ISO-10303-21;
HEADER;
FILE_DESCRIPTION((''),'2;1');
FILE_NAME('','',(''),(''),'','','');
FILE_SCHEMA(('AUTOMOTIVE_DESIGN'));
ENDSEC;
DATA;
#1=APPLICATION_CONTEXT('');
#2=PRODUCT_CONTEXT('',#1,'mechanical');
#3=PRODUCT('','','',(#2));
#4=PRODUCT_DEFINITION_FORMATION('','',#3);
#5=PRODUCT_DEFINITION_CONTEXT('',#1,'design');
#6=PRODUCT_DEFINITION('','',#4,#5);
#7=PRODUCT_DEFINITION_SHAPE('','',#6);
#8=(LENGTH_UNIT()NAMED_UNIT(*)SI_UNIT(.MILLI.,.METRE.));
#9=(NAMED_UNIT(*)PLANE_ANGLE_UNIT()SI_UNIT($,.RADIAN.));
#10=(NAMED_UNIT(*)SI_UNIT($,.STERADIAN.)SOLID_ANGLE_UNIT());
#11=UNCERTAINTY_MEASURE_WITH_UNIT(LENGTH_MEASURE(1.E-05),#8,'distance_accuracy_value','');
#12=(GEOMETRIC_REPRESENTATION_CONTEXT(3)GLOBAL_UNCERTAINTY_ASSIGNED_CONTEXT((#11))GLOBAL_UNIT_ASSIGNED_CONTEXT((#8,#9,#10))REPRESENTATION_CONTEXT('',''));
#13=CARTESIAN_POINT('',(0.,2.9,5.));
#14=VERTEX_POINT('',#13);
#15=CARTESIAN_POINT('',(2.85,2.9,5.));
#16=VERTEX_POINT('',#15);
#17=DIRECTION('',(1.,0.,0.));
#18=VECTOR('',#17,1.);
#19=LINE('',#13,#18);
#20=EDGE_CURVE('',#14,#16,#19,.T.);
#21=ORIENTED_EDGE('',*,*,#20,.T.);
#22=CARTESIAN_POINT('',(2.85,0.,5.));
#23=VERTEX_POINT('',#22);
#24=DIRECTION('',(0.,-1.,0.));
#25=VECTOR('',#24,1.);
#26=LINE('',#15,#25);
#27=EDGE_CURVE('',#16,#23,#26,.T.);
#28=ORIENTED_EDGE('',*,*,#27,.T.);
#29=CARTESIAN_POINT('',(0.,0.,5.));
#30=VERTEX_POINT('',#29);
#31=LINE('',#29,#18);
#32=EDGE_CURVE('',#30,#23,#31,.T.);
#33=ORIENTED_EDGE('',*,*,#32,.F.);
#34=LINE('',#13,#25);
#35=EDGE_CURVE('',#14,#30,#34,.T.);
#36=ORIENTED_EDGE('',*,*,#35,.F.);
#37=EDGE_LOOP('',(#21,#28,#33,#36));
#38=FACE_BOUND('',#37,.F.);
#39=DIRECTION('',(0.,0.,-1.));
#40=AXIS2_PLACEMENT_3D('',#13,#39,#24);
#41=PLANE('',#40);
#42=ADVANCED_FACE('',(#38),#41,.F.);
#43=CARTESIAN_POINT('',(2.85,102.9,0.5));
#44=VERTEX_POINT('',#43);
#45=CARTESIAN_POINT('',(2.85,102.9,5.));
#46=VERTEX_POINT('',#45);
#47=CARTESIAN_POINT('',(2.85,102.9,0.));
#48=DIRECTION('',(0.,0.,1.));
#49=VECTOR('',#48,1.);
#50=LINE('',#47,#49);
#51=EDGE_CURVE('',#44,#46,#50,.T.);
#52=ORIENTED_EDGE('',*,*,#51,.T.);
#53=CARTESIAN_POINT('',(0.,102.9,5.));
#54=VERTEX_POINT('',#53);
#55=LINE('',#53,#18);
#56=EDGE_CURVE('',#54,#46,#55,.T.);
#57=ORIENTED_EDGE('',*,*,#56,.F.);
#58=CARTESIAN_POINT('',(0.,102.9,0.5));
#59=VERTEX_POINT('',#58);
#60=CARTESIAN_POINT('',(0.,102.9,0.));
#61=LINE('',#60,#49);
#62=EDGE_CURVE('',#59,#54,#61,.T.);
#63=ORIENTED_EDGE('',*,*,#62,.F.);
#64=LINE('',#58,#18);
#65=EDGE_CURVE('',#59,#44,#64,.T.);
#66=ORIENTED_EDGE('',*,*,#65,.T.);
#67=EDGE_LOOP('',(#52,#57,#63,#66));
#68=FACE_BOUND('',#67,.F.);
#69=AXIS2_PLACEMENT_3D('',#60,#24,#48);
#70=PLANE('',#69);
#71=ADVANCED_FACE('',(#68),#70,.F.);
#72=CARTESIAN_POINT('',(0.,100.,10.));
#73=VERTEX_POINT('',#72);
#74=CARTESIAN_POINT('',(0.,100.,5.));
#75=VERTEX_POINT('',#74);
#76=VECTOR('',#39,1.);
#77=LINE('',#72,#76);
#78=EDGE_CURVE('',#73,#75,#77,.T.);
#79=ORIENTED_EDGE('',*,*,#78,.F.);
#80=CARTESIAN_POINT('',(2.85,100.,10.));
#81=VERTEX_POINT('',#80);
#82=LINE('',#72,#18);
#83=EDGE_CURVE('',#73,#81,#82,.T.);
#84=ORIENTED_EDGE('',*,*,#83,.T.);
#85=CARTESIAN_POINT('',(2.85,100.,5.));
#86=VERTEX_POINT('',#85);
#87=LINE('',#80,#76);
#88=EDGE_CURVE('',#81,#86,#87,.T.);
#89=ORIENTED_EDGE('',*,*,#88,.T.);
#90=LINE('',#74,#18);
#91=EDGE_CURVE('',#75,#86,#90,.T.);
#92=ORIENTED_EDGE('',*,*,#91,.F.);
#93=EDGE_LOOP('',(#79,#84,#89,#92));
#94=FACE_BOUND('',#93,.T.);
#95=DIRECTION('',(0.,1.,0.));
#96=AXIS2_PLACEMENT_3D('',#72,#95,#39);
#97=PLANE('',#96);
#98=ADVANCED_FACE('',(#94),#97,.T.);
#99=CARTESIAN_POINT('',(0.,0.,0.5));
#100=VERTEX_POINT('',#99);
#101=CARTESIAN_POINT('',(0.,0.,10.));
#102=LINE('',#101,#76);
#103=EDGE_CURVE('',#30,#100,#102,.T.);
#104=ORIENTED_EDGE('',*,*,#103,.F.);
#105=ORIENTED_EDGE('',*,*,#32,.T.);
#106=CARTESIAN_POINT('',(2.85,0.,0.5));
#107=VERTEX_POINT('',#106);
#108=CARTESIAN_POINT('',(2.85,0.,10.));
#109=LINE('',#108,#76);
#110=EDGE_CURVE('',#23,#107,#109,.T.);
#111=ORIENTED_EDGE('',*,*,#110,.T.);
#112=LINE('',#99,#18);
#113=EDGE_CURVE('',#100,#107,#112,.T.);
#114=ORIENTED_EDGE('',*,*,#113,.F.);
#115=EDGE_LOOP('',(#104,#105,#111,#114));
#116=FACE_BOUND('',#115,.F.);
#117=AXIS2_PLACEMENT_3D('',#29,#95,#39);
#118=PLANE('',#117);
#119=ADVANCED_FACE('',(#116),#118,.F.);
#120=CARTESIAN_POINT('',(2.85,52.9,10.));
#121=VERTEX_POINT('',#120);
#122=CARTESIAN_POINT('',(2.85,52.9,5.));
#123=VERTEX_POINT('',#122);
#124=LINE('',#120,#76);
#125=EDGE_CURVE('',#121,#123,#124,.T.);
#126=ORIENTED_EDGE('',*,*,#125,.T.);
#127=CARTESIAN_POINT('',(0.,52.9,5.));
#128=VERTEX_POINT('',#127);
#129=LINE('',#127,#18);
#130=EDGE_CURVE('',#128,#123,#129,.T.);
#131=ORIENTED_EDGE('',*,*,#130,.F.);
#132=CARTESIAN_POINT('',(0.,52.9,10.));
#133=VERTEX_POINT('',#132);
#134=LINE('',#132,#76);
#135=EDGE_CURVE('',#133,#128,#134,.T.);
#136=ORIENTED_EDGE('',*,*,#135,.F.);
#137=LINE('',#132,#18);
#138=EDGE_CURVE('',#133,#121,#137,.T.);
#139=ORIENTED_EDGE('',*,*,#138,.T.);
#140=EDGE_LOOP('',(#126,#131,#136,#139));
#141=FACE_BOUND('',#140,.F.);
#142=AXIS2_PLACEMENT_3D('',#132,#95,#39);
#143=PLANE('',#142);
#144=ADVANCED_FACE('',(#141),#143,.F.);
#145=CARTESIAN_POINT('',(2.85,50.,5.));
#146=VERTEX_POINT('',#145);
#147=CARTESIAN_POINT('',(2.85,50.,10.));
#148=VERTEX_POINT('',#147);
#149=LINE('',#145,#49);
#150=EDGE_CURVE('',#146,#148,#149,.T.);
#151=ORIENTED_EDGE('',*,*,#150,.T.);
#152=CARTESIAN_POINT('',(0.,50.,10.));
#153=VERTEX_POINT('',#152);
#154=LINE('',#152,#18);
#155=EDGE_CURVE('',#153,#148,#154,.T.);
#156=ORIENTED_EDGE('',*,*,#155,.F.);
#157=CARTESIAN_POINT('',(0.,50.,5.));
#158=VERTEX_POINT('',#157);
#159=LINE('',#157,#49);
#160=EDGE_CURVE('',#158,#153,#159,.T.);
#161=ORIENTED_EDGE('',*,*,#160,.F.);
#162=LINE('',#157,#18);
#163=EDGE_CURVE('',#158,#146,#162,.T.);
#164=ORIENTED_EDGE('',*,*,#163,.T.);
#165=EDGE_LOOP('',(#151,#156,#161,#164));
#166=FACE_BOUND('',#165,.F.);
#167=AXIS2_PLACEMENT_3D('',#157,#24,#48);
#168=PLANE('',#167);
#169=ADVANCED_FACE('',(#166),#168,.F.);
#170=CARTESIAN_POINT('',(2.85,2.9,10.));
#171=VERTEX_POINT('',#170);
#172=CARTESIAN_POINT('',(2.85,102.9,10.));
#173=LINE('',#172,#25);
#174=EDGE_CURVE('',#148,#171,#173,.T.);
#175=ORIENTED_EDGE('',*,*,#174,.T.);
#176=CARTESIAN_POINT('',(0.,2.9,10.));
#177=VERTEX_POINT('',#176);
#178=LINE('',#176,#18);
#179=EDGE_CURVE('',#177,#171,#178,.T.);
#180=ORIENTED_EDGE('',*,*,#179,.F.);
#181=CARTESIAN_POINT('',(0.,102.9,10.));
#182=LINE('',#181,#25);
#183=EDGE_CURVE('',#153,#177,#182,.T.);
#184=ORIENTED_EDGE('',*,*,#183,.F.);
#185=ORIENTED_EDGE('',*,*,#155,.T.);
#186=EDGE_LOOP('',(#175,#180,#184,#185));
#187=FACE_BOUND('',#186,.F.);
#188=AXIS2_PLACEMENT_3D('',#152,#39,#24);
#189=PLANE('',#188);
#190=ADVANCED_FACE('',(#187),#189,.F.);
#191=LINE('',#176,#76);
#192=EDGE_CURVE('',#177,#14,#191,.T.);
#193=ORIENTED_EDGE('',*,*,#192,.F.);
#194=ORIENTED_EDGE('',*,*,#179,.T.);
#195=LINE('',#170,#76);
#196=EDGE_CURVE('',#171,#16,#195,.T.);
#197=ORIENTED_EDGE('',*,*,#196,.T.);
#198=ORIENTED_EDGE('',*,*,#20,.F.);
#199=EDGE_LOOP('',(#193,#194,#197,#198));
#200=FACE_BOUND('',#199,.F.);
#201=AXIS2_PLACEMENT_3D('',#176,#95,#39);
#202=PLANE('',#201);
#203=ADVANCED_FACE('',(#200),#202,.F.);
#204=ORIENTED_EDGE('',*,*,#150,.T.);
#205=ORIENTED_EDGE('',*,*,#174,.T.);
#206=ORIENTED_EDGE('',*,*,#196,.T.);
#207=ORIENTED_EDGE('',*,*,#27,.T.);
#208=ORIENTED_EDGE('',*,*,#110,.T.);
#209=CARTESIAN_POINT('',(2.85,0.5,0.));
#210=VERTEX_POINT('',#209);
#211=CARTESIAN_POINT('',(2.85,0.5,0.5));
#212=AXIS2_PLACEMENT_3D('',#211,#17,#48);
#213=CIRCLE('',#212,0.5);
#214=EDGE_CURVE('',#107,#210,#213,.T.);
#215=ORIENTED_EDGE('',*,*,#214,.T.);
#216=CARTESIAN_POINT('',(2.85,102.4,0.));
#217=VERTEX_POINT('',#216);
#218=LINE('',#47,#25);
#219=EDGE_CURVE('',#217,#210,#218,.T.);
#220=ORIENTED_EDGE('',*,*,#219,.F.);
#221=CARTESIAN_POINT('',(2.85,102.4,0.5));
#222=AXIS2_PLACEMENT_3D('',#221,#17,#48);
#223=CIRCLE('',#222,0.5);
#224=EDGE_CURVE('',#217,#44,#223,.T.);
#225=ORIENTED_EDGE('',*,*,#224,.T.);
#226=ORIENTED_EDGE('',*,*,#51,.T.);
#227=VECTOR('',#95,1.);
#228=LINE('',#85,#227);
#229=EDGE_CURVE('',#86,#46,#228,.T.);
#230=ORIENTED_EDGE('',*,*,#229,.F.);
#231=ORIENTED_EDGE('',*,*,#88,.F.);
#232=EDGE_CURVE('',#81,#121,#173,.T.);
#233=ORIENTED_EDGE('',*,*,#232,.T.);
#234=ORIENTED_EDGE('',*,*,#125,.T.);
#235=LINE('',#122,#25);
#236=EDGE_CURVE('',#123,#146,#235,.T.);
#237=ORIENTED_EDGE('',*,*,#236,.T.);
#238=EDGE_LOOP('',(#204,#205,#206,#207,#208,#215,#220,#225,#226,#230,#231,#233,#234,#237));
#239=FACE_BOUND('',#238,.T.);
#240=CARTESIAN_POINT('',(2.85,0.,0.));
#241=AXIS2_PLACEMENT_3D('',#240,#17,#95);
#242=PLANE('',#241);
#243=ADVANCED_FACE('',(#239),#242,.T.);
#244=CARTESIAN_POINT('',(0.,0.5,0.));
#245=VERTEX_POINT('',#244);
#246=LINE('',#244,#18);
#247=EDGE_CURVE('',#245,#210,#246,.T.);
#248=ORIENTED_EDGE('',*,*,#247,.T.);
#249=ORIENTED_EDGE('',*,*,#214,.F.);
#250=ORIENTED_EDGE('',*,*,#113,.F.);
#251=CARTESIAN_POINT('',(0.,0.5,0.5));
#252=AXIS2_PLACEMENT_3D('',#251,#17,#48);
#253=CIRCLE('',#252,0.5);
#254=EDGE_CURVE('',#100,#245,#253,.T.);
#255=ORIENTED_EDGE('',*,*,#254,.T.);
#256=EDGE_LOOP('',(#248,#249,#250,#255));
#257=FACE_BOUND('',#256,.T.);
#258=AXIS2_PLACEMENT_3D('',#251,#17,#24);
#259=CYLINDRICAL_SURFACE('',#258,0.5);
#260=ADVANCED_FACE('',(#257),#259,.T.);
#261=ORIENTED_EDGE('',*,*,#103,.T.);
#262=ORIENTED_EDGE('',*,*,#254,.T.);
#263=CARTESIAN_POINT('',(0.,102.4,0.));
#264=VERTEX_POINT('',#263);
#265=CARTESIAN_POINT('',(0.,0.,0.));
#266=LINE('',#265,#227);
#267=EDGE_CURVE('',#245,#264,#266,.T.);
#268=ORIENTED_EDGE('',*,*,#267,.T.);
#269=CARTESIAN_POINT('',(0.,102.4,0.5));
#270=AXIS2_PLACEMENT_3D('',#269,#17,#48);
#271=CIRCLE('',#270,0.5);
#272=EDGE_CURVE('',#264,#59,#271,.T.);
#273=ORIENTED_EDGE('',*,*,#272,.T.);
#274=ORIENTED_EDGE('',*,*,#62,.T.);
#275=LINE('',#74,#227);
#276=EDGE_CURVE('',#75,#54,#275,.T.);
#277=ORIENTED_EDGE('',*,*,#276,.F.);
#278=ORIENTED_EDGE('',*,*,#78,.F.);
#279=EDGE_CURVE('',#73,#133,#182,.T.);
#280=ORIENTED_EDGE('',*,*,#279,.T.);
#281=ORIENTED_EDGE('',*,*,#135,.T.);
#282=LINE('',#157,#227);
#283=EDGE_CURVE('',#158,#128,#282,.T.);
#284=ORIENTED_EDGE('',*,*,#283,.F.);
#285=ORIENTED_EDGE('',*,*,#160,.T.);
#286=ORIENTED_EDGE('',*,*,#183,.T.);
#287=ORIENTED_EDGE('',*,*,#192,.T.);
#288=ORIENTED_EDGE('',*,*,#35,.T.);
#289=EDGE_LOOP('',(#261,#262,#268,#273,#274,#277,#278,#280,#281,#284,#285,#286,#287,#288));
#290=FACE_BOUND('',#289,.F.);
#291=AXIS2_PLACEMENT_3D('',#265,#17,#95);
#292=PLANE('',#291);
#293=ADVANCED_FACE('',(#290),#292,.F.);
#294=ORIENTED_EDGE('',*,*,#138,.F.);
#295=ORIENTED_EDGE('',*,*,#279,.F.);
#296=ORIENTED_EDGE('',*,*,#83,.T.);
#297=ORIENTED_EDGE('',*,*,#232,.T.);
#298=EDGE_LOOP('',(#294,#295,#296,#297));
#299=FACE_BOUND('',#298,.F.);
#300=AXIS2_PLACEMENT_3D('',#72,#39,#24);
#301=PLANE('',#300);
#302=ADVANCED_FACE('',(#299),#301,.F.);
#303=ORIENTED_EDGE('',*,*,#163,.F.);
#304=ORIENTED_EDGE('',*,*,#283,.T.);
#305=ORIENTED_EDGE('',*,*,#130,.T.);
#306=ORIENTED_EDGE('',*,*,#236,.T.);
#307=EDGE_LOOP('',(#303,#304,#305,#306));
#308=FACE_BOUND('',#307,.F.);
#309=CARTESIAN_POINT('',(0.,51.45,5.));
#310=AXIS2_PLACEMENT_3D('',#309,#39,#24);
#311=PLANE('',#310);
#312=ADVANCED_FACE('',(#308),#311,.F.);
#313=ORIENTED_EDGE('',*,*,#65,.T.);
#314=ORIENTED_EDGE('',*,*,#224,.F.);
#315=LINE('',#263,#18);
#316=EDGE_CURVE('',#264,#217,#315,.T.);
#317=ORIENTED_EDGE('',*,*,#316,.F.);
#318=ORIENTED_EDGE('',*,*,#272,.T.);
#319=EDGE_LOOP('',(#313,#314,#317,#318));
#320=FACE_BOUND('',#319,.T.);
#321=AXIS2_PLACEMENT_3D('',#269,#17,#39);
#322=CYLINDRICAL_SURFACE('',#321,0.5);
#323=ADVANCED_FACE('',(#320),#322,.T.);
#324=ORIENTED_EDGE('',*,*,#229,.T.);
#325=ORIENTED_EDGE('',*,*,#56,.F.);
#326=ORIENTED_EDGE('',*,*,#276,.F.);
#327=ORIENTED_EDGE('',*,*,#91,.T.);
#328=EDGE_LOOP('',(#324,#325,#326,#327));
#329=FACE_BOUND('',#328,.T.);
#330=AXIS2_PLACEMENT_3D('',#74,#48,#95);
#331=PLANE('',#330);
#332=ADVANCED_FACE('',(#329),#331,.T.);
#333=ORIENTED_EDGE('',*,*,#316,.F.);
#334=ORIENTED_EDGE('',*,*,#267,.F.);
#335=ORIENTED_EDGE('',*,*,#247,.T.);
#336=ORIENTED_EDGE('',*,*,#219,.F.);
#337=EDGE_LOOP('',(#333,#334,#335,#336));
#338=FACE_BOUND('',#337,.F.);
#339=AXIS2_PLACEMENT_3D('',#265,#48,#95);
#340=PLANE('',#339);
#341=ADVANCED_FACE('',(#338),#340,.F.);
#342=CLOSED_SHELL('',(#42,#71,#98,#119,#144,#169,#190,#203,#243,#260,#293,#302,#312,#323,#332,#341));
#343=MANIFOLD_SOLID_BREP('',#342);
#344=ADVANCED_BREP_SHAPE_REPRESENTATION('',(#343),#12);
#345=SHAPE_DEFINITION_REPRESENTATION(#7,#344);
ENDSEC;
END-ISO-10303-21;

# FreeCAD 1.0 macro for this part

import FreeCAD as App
import Part
import Sketcher


def edges_at(feature, points):
    """Names of the edges that pass closest to the given points."""
    edges = feature.Shape.Edges
    near = lambda p: min(range(len(edges)), key=lambda i: edges[i].distToShape(Part.Vertex(*p))[0])
    return sorted({f"Edge{near(p) + 1}" for p in points})


def add_polygon(sketch, points):
    """Adds a closed chain of lines whose ends are joined by coincident constraints."""
    first, n = sketch.GeometryCount, len(points)
    for a, b in zip(points, points[1:] + points[:1]):
        sketch.addGeometry(Part.LineSegment(App.Vector(*a, 0), App.Vector(*b, 0)), False)
    for i in range(n):
        sketch.addConstraint(Sketcher.Constraint("Coincident", first + i, 2, first + (i + 1) % n, 1))

doc = App.newDocument("Part")
body = doc.addObject("PartDesign::Body", "Body")

# Sketch on YZ plane
sketch1 = doc.addObject("Sketcher::SketchObject", "Sketch")
body.addObject(sketch1)
sketch1.AttachmentSupport = (doc.YZ_Plane, [""])
sketch1.MapMode = "FlatFace"
add_polygon(sketch1, [(0, 5), (0, 0), (102.9, 0), (102.9, 5), (100, 5), (100, 10), (52.9, 10), (52.9, 5), (50, 5), (50, 10), (2.9, 10), (2.9, 5)])  # lines 0-11
sketch1.addConstraint([
    Sketcher.Constraint("Vertical", 0),
    Sketcher.Constraint("Horizontal", 1),
    Sketcher.Constraint("Vertical", 2),
    Sketcher.Constraint("Horizontal", 3),
    Sketcher.Constraint("Vertical", 4),
    Sketcher.Constraint("Horizontal", 5),
    Sketcher.Constraint("Vertical", 6),
    Sketcher.Constraint("Horizontal", 7),
    Sketcher.Constraint("Vertical", 8),
    Sketcher.Constraint("Horizontal", 9),
    Sketcher.Constraint("Vertical", 10),
    Sketcher.Constraint("Horizontal", 11),
    Sketcher.Constraint("Coincident", 0, 2, -1, 1),
    Sketcher.Constraint("Horizontal", 3, 2, 6, 2),
    Sketcher.Constraint("Horizontal", 5, 2, 8, 2),
    Sketcher.Constraint("Horizontal", 7, 2, 10, 2),
    Sketcher.Constraint("Equal", 3, 7),
    Sketcher.Constraint("Equal", 5, 9),
    Sketcher.Constraint("Equal", 7, 11),
    Sketcher.Constraint("Equal", 2, 4),
    Sketcher.Constraint("DistanceY", 0, 2, 0, 1, 5.0),
    Sketcher.Constraint("DistanceX", 3, 2, 3, 1, 2.9),
    Sketcher.Constraint("DistanceX", -1, 1, 7, 2, 50.0),
])
pad1 = doc.addObject("PartDesign::Pad", "Pad")
body.addObject(pad1)
pad1.Profile = sketch1
pad1.Length = 2.85
doc.recompute()

fillet = doc.addObject("PartDesign::Fillet", "Fillet")
body.addObject(fillet)
fillet.Base = (pad1, edges_at(pad1, [(1.425, 0, 0), (1.425, 102.9, 0)]))
fillet.Radius = 0.5

doc.recompute()
